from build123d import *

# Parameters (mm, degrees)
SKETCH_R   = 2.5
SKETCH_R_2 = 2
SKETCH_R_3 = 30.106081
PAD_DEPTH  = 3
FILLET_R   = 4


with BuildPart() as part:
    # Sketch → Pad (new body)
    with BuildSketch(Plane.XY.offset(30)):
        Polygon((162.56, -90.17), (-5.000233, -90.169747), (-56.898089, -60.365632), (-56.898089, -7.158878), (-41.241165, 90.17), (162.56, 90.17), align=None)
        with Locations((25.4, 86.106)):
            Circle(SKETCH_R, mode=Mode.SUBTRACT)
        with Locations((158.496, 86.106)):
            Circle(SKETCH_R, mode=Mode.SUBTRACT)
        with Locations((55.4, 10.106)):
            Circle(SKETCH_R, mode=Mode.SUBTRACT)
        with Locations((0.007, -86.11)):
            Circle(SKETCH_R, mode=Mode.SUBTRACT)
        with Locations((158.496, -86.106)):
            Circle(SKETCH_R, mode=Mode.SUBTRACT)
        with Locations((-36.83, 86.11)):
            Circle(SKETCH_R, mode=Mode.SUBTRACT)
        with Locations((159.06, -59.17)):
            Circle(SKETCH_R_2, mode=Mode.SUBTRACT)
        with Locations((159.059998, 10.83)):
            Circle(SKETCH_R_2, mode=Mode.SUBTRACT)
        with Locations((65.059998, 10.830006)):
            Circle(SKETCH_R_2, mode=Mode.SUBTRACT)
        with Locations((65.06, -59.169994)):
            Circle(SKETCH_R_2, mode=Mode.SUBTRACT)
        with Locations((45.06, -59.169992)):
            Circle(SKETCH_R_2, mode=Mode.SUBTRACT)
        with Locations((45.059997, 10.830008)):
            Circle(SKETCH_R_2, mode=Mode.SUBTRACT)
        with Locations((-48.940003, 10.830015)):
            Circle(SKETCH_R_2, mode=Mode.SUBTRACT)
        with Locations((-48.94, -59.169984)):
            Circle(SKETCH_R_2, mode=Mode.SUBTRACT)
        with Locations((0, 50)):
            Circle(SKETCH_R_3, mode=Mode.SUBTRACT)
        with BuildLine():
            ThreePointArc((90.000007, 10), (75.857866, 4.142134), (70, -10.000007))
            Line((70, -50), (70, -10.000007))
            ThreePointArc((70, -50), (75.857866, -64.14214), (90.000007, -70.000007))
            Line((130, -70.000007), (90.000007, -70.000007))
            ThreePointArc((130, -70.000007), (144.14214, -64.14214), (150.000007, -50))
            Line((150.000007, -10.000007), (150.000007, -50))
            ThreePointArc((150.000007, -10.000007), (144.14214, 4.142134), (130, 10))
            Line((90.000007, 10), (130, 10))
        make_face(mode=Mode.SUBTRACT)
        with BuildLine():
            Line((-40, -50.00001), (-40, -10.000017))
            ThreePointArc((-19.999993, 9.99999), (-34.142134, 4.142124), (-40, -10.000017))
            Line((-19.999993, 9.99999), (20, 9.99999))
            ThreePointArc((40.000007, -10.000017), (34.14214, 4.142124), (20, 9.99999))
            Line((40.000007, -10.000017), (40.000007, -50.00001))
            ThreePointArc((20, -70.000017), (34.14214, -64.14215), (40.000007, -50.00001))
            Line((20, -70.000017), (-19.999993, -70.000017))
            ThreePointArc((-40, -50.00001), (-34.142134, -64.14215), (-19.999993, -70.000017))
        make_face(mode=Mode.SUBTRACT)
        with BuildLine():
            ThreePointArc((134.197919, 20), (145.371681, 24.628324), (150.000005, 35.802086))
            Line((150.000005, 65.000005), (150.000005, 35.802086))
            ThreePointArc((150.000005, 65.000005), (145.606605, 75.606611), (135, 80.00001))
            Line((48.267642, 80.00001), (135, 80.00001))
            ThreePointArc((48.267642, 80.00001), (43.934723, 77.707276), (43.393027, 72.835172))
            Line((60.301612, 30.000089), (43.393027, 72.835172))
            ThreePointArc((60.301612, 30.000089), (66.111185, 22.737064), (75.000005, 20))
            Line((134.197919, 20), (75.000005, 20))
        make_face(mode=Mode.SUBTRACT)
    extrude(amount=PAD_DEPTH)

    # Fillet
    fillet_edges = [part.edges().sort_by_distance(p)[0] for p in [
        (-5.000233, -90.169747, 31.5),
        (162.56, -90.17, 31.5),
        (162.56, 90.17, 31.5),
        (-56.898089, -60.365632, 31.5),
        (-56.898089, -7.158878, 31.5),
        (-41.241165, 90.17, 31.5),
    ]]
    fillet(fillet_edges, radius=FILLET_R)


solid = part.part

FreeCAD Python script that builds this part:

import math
import FreeCAD as App
import Part
import Sketcher

V = App.Vector


def edges_at(feature, points):
    """Names of the edges that pass closest to the given points."""
    edges = feature.Shape.Edges
    near = lambda p: min(range(len(edges)), key=lambda i: edges[i].distToShape(Part.Vertex(*p))[0])
    return sorted({f"Edge{near(p) + 1}" for p in points})

doc = App.newDocument("Part")
body = doc.addObject("PartDesign::Body", "Body")

# Sketch on XY plane
sketch1 = body.newObject("Sketcher::SketchObject", "Sketch")
sketch1.AttachmentSupport = (doc.getObject("XY_Plane"), [""])
sketch1.MapMode = "FlatFace"
sketch1.AttachmentOffset = App.Placement(V(0, 0, 30), App.Rotation())
sketch1.addGeometry(Part.LineSegment(V(-5, -90.2, 0), V(162.6, -90.2, 0)), False)
sketch1.addGeometry(Part.LineSegment(V(162.6, -90.2, 0), V(162.6, 90.2, 0)), False)
sketch1.addGeometry(Part.LineSegment(V(162.6, 90.2, 0), V(-41.2, 90.2, 0)), False)
sketch1.addGeometry(Part.LineSegment(V(-41.2, 90.2, 0), V(-56.9, -7.2, 0)), False)
sketch1.addGeometry(Part.LineSegment(V(-56.9, -7.2, 0), V(-56.9, -60.4, 0)), False)
sketch1.addGeometry(Part.LineSegment(V(-56.9, -60.4, 0), V(-5, -90.2, 0)), False)
sketch1.addGeometry(Part.Circle(V(158.5, -86.1, 0), V(0, 0, 1), 2.5), False)
sketch1.addGeometry(Part.Circle(V(159.1, -59.2, 0), V(0, 0, 1), 2), False)
sketch1.addGeometry(Part.Circle(V(65.1, -59.2, 0), V(0, 0, 1), 2), False)
sketch1.addGeometry(Part.LineSegment(V(90, 10, 0), V(130, 10, 0)), False)
sketch1.addGeometry(Part.ArcOfCircle(Part.Circle(V(130, -10, 0), V(0, 0, 1), 20), math.radians(0), math.radians(90)), False)
sketch1.addGeometry(Part.LineSegment(V(150, -10, 0), V(150, -50, 0)), False)
sketch1.addGeometry(Part.ArcOfCircle(Part.Circle(V(130, -50, 0), V(0, 0, 1), 20), math.radians(-90), math.radians(0)), False)
sketch1.addGeometry(Part.LineSegment(V(130, -70, 0), V(90, -70, 0)), False)
sketch1.addGeometry(Part.ArcOfCircle(Part.Circle(V(90, -50, 0), V(0, 0, 1), 20), math.radians(-180), math.radians(-90)), False)
sketch1.addGeometry(Part.LineSegment(V(70, -50, 0), V(70, -10, 0)), False)
sketch1.addGeometry(Part.ArcOfCircle(Part.Circle(V(90, -10, 0), V(0, 0, 1), 20), math.radians(90), math.radians(180)), False)
sketch1.addGeometry(Part.Circle(V(45.1, -59.2, 0), V(0, 0, 1), 2), False)
sketch1.addGeometry(Part.Circle(V(0, -86.1, 0), V(0, 0, 1), 2.5), False)
sketch1.addGeometry(Part.Circle(V(-48.9, -59.2, 0), V(0, 0, 1), 2), False)
sketch1.addGeometry(Part.LineSegment(V(-40, -50, 0), V(-40, -10, 0)), False)
sketch1.addGeometry(Part.ArcOfCircle(Part.Circle(V(-20, -10, 0), V(0, 0, 1), 20), math.radians(90), math.radians(180)), False)
sketch1.addGeometry(Part.LineSegment(V(-20, 10, 0), V(20, 10, 0)), False)
sketch1.addGeometry(Part.ArcOfCircle(Part.Circle(V(20, -10, 0), V(0, 0, 1), 20), math.radians(0), math.radians(90)), False)
sketch1.addGeometry(Part.LineSegment(V(40, -10, 0), V(40, -50, 0)), False)
sketch1.addGeometry(Part.ArcOfCircle(Part.Circle(V(20, -50, 0), V(0, 0, 1), 20), math.radians(-90), math.radians(0)), False)
sketch1.addGeometry(Part.LineSegment(V(20, -70, 0), V(-20, -70, 0)), False)
sketch1.addGeometry(Part.ArcOfCircle(Part.Circle(V(-20, -50, 0), V(0, 0, 1), 20), math.radians(-180), math.radians(-90)), False)
sketch1.addGeometry(Part.Circle(V(159.1, 10.8, 0), V(0, 0, 1), 2), False)
sketch1.addGeometry(Part.Circle(V(65.1, 10.8, 0), V(0, 0, 1), 2), False)
sketch1.addGeometry(Part.Circle(V(55.4, 10.1, 0), V(0, 0, 1), 2.5), False)
sketch1.addGeometry(Part.Circle(V(158.5, 86.1, 0), V(0, 0, 1), 2.5), False)
sketch1.addGeometry(Part.LineSegment(V(134.2, 20, 0), V(75, 20, 0)), False)
sketch1.addGeometry(Part.ArcOfCircle(Part.Circle(V(75, 35.8, 0), V(0, 0, 1), 15.8), math.radians(-158), math.radians(-90)), False)
sketch1.addGeometry(Part.LineSegment(V(60.3, 30, 0), V(43.4, 72.8, 0)), False)
sketch1.addGeometry(Part.ArcOfCircle(Part.Circle(V(48.3, 74.8, 0), V(0, 0, 1), 5.2), math.radians(90), math.radians(202)), False)
sketch1.addGeometry(Part.LineSegment(V(48.3, 80, 0), V(135, 80, 0)), False)
sketch1.addGeometry(Part.ArcOfCircle(Part.Circle(V(135, 65, 0), V(0, 0, 1), 15), math.radians(0), math.radians(90)), False)
sketch1.addGeometry(Part.LineSegment(V(150, 65, 0), V(150, 35.8, 0)), False)
sketch1.addGeometry(Part.ArcOfCircle(Part.Circle(V(134.2, 35.8, 0), V(0, 0, 1), 15.8), math.radians(-90), math.radians(0)), False)
sketch1.addGeometry(Part.Circle(V(45.1, 10.8, 0), V(0, 0, 1), 2), False)
sketch1.addGeometry(Part.Circle(V(-48.9, 10.8, 0), V(0, 0, 1), 2), False)
sketch1.addGeometry(Part.Circle(V(25.4, 86.1, 0), V(0, 0, 1), 2.5), False)
sketch1.addGeometry(Part.Circle(V(0, 50, 0), V(0, 0, 1), 30.1), False)
sketch1.addGeometry(Part.Circle(V(-36.8, 86.1, 0), V(0, 0, 1), 2.5), False)
sketch1.addConstraint(Sketcher.Constraint("Coincident", 0, 2, 1, 1))
sketch1.addConstraint(Sketcher.Constraint("Coincident", 1, 2, 2, 1))
sketch1.addConstraint(Sketcher.Constraint("Coincident", 2, 2, 3, 1))
sketch1.addConstraint(Sketcher.Constraint("Coincident", 3, 2, 4, 1))
sketch1.addConstraint(Sketcher.Constraint("Coincident", 4, 2, 5, 1))
sketch1.addConstraint(Sketcher.Constraint("Coincident", 5, 2, 0, 1))
sketch1.addConstraint(Sketcher.Constraint("Tangent", 9, 2, 10, 2))
sketch1.addConstraint(Sketcher.Constraint("Tangent", 10, 1, 11, 1))
sketch1.addConstraint(Sketcher.Constraint("Tangent", 11, 2, 12, 2))
sketch1.addConstraint(Sketcher.Constraint("Tangent", 12, 1, 13, 1))
sketch1.addConstraint(Sketcher.Constraint("Tangent", 13, 2, 14, 2))
sketch1.addConstraint(Sketcher.Constraint("Tangent", 14, 1, 15, 1))
sketch1.addConstraint(Sketcher.Constraint("Tangent", 15, 2, 16, 2))
sketch1.addConstraint(Sketcher.Constraint("Tangent", 16, 1, 9, 1))
sketch1.addConstraint(Sketcher.Constraint("Tangent", 20, 2, 21, 2))
sketch1.addConstraint(Sketcher.Constraint("Tangent", 21, 1, 22, 1))
sketch1.addConstraint(Sketcher.Constraint("Tangent", 22, 2, 23, 2))
sketch1.addConstraint(Sketcher.Constraint("Tangent", 23, 1, 24, 1))
sketch1.addConstraint(Sketcher.Constraint("Tangent", 24, 2, 25, 2))
sketch1.addConstraint(Sketcher.Constraint("Tangent", 25, 1, 26, 1))
sketch1.addConstraint(Sketcher.Constraint("Tangent", 26, 2, 27, 2))
sketch1.addConstraint(Sketcher.Constraint("Tangent", 27, 1, 20, 1))
sketch1.addConstraint(Sketcher.Constraint("Tangent", 32, 2, 33, 2))
sketch1.addConstraint(Sketcher.Constraint("Tangent", 33, 1, 34, 1))
sketch1.addConstraint(Sketcher.Constraint("Tangent", 34, 2, 35, 2))
sketch1.addConstraint(Sketcher.Constraint("Tangent", 35, 1, 36, 1))
sketch1.addConstraint(Sketcher.Constraint("Tangent", 36, 2, 37, 2))
sketch1.addConstraint(Sketcher.Constraint("Tangent", 37, 1, 38, 1))
sketch1.addConstraint(Sketcher.Constraint("Tangent", 38, 2, 39, 2))
sketch1.addConstraint(Sketcher.Constraint("Tangent", 39, 1, 32, 1))
sketch1.addConstraint(Sketcher.Constraint("Vertical", 1))
sketch1.addConstraint(Sketcher.Constraint("Horizontal", 2))
sketch1.addConstraint(Sketcher.Constraint("Vertical", 4))
sketch1.addConstraint(Sketcher.Constraint("Horizontal", 9))
sketch1.addConstraint(Sketcher.Constraint("Vertical", 11))
sketch1.addConstraint(Sketcher.Constraint("Horizontal", 13))
sketch1.addConstraint(Sketcher.Constraint("Vertical", 15))
sketch1.addConstraint(Sketcher.Constraint("Vertical", 20))
sketch1.addConstraint(Sketcher.Constraint("Horizontal", 22))
sketch1.addConstraint(Sketcher.Constraint("Vertical", 24))
sketch1.addConstraint(Sketcher.Constraint("Horizontal", 26))
sketch1.addConstraint(Sketcher.Constraint("Horizontal", 32))
sketch1.addConstraint(Sketcher.Constraint("Horizontal", 36))
sketch1.addConstraint(Sketcher.Constraint("Vertical", 38))
sketch1.addConstraint(Sketcher.Constraint("Equal", 7, 8))
sketch1.addConstraint(Sketcher.Constraint("Equal", 10, 12))
sketch1.addConstraint(Sketcher.Constraint("Equal", 12, 14))
sketch1.addConstraint(Sketcher.Constraint("Equal", 14, 16))
sketch1.addConstraint(Sketcher.Constraint("Equal", 8, 17))
sketch1.addConstraint(Sketcher.Constraint("Equal", 6, 18))
sketch1.addConstraint(Sketcher.Constraint("Equal", 17, 19))
sketch1.addConstraint(Sketcher.Constraint("Equal", 16, 21))
sketch1.addConstraint(Sketcher.Constraint("Equal", 21, 23))
sketch1.addConstraint(Sketcher.Constraint("Equal", 23, 25))
sketch1.addConstraint(Sketcher.Constraint("Equal", 25, 27))
sketch1.addConstraint(Sketcher.Constraint("Equal", 19, 28))
sketch1.addConstraint(Sketcher.Constraint("Equal", 28, 29))
sketch1.addConstraint(Sketcher.Constraint("Equal", 18, 30))
sketch1.addConstraint(Sketcher.Constraint("Equal", 30, 31))
sketch1.addConstraint(Sketcher.Constraint("Equal", 33, 39))
sketch1.addConstraint(Sketcher.Constraint("Equal", 29, 40))
sketch1.addConstraint(Sketcher.Constraint("Equal", 40, 41))
sketch1.addConstraint(Sketcher.Constraint("Equal", 31, 42))
sketch1.addConstraint(Sketcher.Constraint("Equal", 42, 44))
sketch1.addConstraint(Sketcher.Constraint("Symmetric", 6, 3, 31, 3, -1))
sketch1.addConstraint(Sketcher.Constraint("PointOnObject", 43, 3, -2))
sketch1.addConstraint(Sketcher.Constraint("Horizontal", 31, 3, 42, 3))
sketch1.addConstraint(Sketcher.Constraint("Vertical", 7, 3, 28, 3))
sketch1.addConstraint(Sketcher.Constraint("Equal", 13, 22))
sketch1.addConstraint(Sketcher.Constraint("Equal", 26, 11))
sketch1.addConstraint(Sketcher.Constraint("Equal", 15, 20))
sketch1.addConstraint(Sketcher.Constraint("Diameter", 6, 5.0))
sketch1.addConstraint(Sketcher.Constraint("Diameter", 7, 4.0))
sketch1.addConstraint(Sketcher.Constraint("DistanceX", -1, 1, 10, 3, 130.0))
sketch1.addConstraint(Sketcher.Constraint("DistanceY", 12, 3, -1, 1, 49.999998))
sketch1.addConstraint(Sketcher.Constraint("DistanceX", -1, 1, 23, 3, 20.0))
sketch1.addConstraint(Sketcher.Constraint("DistanceX", -1, 1, 37, 3, 135.000001))
sketch1.addConstraint(Sketcher.Constraint("DistanceY", -1, 1, 43, 3, 50.0))
sketch1.addConstraint(Sketcher.Constraint("DistanceY", -1, 1, 9, 2, 10.0))
sketch1.addConstraint(Sketcher.Constraint("DistanceY", -1, 1, 32, 2, 20.0))
sketch1.addConstraint(Sketcher.Constraint("DistanceX", 8, 3, 7, 3, 94.0))
sketch1.addConstraint(Sketcher.Constraint("DistanceX", 17, 3, 8, 3, 20.0))
sketch1.addConstraint(Sketcher.Constraint("DistanceX", 19, 3, 17, 3, 94.0))
sketch1.addConstraint(Sketcher.Constraint("DistanceY", 7, 3, 28, 3, 70.0))
sketch1.addConstraint(Sketcher.Constraint("DistanceY", 8, 3, 29, 3, 70.0))
sketch1.addConstraint(Sketcher.Constraint("DistanceY", 30, 3, 31, 3, 76.0))
sketch1.addConstraint(Sketcher.Constraint("DistanceX", 33, 3, 16, 3, 15.0))
sketch1.addConstraint(Sketcher.Constraint("DistanceX", 40, 3, 29, 3, 20.000001))
sketch1.addConstraint(Sketcher.Constraint("DistanceY", 19, 3, 41, 3, 69.999999))
sketch1.addConstraint(Sketcher.Constraint("DistanceX", 42, 3, 30, 3, 30.0))
sketch1.addConstraint(Sketcher.Constraint("DistanceY", 0, 2, 7, 3, 31.0))
sketch1.addConstraint(Sketcher.Constraint("DistanceY", 1, 1, 1, 2, 180.34))
sketch1.addConstraint(Sketcher.Constraint("DistanceX", -1, 1, 30, 3, 55.4))
sketch1.addConstraint(Sketcher.Constraint("DistanceX", 7, 3, 0, 2, 3.5))
sketch1.addConstraint(Sketcher.Constraint("DistanceX", -1, 1, 7, 3, 159.06))
sketch1.addConstraint(Sketcher.Constraint("DistanceY", 7, 3, -1, 1, 59.17))
sketch1.addConstraint(Sketcher.Constraint("DistanceY", 18, 3, -1, 1, 86.11))
sketch1.addConstraint(Sketcher.Constraint("DistanceX", 44, 3, -1, 1, 36.83))
sketch1.addConstraint(Sketcher.Constraint("DistanceY", -1, 1, 44, 3, 86.11))
sketch1.addConstraint(Sketcher.Constraint("Radius", 12, 20.000009))
sketch1.addConstraint(Sketcher.Constraint("DistanceX", 23, 3, 29, 3, 45.059998))
sketch1.addConstraint(Sketcher.Constraint("DistanceX", 41, 3, 25, 3, 68.940001))
sketch1.addConstraint(Sketcher.Constraint("Diameter", 43, 60.212162))
sketch1.addConstraint(Sketcher.Constraint("DistanceX", -1, 1, 6, 3, 158.496))
sketch1.addConstraint(Sketcher.Constraint("DistanceY", 6, 3, -1, 1, 86.106))
sketch1.addConstraint(Sketcher.Constraint("DistanceX", -1, 1, 18, 3, 0.007))
sketch1.addConstraint(Sketcher.Constraint("Radius", 33, 15.802087))
sketch1.addConstraint(Sketcher.Constraint("Radius", 35, 5.240648))
sketch1.addConstraint(Sketcher.Constraint("Radius", 37, 15.000004))
sketch1.addConstraint(Sketcher.Constraint("DistanceX", 36, 1, 36, 2, 86.732358))
sketch1.addConstraint(Sketcher.Constraint("DistanceY", 38, 2, 38, 1, 29.197919))
sketch1.addConstraint(Sketcher.Constraint("Distance", 3, 98.580169))
sketch1.addConstraint(Sketcher.Constraint("DistanceX", 2, 2, 2, 1, 203.801165))
sketch1.addConstraint(Sketcher.Constraint("DistanceY", 4, 2, 4, 1, 53.206754))
sketch1.addConstraint(Sketcher.Constraint("DistanceY", 25, 3, -1, 1, 50.000008))
sketch1.addConstraint(Sketcher.Constraint("DistanceX", 3, 2, -1, 1, 56.898089))
sketch1.addConstraint(Sketcher.Constraint("DistanceY", 8, 3, 16, 3, 49.169988))
sketch1.addConstraint(Sketcher.Constraint("DistanceY", 19, 3, 16, 3, 49.169978))
sketch1.addConstraint(Sketcher.Constraint("DistanceY", 40, 3, 33, 3, 24.972079))
sketch1.addConstraint(Sketcher.Constraint("DistanceX", 27, 3, 5, 2, 14.99976))
sketch1.addConstraint(Sketcher.Constraint("DistanceY", 5, 2, 25, 3, 40.169739))
sketch1.addConstraint(Sketcher.Constraint("DistanceY", 17, 3, 24, 2, 9.169982))
pad1 = body.newObject("PartDesign::Pad", "Pad")
pad1.Profile = sketch1
pad1.Length = 3
doc.recompute()

fillet = body.newObject("PartDesign::Fillet", "Fillet")
fillet.Base = (pad1, edges_at(pad1, [
    (-5, -90.17, 31.5),
    (162.56, -90.17, 31.5),
    (162.56, 90.17, 31.5),
    (-56.898, -60.366, 31.5),
    (-56.898, -7.159, 31.5),
    (-41.241, 90.17, 31.5),
]))
fillet.Radius = 4

doc.recompute()
